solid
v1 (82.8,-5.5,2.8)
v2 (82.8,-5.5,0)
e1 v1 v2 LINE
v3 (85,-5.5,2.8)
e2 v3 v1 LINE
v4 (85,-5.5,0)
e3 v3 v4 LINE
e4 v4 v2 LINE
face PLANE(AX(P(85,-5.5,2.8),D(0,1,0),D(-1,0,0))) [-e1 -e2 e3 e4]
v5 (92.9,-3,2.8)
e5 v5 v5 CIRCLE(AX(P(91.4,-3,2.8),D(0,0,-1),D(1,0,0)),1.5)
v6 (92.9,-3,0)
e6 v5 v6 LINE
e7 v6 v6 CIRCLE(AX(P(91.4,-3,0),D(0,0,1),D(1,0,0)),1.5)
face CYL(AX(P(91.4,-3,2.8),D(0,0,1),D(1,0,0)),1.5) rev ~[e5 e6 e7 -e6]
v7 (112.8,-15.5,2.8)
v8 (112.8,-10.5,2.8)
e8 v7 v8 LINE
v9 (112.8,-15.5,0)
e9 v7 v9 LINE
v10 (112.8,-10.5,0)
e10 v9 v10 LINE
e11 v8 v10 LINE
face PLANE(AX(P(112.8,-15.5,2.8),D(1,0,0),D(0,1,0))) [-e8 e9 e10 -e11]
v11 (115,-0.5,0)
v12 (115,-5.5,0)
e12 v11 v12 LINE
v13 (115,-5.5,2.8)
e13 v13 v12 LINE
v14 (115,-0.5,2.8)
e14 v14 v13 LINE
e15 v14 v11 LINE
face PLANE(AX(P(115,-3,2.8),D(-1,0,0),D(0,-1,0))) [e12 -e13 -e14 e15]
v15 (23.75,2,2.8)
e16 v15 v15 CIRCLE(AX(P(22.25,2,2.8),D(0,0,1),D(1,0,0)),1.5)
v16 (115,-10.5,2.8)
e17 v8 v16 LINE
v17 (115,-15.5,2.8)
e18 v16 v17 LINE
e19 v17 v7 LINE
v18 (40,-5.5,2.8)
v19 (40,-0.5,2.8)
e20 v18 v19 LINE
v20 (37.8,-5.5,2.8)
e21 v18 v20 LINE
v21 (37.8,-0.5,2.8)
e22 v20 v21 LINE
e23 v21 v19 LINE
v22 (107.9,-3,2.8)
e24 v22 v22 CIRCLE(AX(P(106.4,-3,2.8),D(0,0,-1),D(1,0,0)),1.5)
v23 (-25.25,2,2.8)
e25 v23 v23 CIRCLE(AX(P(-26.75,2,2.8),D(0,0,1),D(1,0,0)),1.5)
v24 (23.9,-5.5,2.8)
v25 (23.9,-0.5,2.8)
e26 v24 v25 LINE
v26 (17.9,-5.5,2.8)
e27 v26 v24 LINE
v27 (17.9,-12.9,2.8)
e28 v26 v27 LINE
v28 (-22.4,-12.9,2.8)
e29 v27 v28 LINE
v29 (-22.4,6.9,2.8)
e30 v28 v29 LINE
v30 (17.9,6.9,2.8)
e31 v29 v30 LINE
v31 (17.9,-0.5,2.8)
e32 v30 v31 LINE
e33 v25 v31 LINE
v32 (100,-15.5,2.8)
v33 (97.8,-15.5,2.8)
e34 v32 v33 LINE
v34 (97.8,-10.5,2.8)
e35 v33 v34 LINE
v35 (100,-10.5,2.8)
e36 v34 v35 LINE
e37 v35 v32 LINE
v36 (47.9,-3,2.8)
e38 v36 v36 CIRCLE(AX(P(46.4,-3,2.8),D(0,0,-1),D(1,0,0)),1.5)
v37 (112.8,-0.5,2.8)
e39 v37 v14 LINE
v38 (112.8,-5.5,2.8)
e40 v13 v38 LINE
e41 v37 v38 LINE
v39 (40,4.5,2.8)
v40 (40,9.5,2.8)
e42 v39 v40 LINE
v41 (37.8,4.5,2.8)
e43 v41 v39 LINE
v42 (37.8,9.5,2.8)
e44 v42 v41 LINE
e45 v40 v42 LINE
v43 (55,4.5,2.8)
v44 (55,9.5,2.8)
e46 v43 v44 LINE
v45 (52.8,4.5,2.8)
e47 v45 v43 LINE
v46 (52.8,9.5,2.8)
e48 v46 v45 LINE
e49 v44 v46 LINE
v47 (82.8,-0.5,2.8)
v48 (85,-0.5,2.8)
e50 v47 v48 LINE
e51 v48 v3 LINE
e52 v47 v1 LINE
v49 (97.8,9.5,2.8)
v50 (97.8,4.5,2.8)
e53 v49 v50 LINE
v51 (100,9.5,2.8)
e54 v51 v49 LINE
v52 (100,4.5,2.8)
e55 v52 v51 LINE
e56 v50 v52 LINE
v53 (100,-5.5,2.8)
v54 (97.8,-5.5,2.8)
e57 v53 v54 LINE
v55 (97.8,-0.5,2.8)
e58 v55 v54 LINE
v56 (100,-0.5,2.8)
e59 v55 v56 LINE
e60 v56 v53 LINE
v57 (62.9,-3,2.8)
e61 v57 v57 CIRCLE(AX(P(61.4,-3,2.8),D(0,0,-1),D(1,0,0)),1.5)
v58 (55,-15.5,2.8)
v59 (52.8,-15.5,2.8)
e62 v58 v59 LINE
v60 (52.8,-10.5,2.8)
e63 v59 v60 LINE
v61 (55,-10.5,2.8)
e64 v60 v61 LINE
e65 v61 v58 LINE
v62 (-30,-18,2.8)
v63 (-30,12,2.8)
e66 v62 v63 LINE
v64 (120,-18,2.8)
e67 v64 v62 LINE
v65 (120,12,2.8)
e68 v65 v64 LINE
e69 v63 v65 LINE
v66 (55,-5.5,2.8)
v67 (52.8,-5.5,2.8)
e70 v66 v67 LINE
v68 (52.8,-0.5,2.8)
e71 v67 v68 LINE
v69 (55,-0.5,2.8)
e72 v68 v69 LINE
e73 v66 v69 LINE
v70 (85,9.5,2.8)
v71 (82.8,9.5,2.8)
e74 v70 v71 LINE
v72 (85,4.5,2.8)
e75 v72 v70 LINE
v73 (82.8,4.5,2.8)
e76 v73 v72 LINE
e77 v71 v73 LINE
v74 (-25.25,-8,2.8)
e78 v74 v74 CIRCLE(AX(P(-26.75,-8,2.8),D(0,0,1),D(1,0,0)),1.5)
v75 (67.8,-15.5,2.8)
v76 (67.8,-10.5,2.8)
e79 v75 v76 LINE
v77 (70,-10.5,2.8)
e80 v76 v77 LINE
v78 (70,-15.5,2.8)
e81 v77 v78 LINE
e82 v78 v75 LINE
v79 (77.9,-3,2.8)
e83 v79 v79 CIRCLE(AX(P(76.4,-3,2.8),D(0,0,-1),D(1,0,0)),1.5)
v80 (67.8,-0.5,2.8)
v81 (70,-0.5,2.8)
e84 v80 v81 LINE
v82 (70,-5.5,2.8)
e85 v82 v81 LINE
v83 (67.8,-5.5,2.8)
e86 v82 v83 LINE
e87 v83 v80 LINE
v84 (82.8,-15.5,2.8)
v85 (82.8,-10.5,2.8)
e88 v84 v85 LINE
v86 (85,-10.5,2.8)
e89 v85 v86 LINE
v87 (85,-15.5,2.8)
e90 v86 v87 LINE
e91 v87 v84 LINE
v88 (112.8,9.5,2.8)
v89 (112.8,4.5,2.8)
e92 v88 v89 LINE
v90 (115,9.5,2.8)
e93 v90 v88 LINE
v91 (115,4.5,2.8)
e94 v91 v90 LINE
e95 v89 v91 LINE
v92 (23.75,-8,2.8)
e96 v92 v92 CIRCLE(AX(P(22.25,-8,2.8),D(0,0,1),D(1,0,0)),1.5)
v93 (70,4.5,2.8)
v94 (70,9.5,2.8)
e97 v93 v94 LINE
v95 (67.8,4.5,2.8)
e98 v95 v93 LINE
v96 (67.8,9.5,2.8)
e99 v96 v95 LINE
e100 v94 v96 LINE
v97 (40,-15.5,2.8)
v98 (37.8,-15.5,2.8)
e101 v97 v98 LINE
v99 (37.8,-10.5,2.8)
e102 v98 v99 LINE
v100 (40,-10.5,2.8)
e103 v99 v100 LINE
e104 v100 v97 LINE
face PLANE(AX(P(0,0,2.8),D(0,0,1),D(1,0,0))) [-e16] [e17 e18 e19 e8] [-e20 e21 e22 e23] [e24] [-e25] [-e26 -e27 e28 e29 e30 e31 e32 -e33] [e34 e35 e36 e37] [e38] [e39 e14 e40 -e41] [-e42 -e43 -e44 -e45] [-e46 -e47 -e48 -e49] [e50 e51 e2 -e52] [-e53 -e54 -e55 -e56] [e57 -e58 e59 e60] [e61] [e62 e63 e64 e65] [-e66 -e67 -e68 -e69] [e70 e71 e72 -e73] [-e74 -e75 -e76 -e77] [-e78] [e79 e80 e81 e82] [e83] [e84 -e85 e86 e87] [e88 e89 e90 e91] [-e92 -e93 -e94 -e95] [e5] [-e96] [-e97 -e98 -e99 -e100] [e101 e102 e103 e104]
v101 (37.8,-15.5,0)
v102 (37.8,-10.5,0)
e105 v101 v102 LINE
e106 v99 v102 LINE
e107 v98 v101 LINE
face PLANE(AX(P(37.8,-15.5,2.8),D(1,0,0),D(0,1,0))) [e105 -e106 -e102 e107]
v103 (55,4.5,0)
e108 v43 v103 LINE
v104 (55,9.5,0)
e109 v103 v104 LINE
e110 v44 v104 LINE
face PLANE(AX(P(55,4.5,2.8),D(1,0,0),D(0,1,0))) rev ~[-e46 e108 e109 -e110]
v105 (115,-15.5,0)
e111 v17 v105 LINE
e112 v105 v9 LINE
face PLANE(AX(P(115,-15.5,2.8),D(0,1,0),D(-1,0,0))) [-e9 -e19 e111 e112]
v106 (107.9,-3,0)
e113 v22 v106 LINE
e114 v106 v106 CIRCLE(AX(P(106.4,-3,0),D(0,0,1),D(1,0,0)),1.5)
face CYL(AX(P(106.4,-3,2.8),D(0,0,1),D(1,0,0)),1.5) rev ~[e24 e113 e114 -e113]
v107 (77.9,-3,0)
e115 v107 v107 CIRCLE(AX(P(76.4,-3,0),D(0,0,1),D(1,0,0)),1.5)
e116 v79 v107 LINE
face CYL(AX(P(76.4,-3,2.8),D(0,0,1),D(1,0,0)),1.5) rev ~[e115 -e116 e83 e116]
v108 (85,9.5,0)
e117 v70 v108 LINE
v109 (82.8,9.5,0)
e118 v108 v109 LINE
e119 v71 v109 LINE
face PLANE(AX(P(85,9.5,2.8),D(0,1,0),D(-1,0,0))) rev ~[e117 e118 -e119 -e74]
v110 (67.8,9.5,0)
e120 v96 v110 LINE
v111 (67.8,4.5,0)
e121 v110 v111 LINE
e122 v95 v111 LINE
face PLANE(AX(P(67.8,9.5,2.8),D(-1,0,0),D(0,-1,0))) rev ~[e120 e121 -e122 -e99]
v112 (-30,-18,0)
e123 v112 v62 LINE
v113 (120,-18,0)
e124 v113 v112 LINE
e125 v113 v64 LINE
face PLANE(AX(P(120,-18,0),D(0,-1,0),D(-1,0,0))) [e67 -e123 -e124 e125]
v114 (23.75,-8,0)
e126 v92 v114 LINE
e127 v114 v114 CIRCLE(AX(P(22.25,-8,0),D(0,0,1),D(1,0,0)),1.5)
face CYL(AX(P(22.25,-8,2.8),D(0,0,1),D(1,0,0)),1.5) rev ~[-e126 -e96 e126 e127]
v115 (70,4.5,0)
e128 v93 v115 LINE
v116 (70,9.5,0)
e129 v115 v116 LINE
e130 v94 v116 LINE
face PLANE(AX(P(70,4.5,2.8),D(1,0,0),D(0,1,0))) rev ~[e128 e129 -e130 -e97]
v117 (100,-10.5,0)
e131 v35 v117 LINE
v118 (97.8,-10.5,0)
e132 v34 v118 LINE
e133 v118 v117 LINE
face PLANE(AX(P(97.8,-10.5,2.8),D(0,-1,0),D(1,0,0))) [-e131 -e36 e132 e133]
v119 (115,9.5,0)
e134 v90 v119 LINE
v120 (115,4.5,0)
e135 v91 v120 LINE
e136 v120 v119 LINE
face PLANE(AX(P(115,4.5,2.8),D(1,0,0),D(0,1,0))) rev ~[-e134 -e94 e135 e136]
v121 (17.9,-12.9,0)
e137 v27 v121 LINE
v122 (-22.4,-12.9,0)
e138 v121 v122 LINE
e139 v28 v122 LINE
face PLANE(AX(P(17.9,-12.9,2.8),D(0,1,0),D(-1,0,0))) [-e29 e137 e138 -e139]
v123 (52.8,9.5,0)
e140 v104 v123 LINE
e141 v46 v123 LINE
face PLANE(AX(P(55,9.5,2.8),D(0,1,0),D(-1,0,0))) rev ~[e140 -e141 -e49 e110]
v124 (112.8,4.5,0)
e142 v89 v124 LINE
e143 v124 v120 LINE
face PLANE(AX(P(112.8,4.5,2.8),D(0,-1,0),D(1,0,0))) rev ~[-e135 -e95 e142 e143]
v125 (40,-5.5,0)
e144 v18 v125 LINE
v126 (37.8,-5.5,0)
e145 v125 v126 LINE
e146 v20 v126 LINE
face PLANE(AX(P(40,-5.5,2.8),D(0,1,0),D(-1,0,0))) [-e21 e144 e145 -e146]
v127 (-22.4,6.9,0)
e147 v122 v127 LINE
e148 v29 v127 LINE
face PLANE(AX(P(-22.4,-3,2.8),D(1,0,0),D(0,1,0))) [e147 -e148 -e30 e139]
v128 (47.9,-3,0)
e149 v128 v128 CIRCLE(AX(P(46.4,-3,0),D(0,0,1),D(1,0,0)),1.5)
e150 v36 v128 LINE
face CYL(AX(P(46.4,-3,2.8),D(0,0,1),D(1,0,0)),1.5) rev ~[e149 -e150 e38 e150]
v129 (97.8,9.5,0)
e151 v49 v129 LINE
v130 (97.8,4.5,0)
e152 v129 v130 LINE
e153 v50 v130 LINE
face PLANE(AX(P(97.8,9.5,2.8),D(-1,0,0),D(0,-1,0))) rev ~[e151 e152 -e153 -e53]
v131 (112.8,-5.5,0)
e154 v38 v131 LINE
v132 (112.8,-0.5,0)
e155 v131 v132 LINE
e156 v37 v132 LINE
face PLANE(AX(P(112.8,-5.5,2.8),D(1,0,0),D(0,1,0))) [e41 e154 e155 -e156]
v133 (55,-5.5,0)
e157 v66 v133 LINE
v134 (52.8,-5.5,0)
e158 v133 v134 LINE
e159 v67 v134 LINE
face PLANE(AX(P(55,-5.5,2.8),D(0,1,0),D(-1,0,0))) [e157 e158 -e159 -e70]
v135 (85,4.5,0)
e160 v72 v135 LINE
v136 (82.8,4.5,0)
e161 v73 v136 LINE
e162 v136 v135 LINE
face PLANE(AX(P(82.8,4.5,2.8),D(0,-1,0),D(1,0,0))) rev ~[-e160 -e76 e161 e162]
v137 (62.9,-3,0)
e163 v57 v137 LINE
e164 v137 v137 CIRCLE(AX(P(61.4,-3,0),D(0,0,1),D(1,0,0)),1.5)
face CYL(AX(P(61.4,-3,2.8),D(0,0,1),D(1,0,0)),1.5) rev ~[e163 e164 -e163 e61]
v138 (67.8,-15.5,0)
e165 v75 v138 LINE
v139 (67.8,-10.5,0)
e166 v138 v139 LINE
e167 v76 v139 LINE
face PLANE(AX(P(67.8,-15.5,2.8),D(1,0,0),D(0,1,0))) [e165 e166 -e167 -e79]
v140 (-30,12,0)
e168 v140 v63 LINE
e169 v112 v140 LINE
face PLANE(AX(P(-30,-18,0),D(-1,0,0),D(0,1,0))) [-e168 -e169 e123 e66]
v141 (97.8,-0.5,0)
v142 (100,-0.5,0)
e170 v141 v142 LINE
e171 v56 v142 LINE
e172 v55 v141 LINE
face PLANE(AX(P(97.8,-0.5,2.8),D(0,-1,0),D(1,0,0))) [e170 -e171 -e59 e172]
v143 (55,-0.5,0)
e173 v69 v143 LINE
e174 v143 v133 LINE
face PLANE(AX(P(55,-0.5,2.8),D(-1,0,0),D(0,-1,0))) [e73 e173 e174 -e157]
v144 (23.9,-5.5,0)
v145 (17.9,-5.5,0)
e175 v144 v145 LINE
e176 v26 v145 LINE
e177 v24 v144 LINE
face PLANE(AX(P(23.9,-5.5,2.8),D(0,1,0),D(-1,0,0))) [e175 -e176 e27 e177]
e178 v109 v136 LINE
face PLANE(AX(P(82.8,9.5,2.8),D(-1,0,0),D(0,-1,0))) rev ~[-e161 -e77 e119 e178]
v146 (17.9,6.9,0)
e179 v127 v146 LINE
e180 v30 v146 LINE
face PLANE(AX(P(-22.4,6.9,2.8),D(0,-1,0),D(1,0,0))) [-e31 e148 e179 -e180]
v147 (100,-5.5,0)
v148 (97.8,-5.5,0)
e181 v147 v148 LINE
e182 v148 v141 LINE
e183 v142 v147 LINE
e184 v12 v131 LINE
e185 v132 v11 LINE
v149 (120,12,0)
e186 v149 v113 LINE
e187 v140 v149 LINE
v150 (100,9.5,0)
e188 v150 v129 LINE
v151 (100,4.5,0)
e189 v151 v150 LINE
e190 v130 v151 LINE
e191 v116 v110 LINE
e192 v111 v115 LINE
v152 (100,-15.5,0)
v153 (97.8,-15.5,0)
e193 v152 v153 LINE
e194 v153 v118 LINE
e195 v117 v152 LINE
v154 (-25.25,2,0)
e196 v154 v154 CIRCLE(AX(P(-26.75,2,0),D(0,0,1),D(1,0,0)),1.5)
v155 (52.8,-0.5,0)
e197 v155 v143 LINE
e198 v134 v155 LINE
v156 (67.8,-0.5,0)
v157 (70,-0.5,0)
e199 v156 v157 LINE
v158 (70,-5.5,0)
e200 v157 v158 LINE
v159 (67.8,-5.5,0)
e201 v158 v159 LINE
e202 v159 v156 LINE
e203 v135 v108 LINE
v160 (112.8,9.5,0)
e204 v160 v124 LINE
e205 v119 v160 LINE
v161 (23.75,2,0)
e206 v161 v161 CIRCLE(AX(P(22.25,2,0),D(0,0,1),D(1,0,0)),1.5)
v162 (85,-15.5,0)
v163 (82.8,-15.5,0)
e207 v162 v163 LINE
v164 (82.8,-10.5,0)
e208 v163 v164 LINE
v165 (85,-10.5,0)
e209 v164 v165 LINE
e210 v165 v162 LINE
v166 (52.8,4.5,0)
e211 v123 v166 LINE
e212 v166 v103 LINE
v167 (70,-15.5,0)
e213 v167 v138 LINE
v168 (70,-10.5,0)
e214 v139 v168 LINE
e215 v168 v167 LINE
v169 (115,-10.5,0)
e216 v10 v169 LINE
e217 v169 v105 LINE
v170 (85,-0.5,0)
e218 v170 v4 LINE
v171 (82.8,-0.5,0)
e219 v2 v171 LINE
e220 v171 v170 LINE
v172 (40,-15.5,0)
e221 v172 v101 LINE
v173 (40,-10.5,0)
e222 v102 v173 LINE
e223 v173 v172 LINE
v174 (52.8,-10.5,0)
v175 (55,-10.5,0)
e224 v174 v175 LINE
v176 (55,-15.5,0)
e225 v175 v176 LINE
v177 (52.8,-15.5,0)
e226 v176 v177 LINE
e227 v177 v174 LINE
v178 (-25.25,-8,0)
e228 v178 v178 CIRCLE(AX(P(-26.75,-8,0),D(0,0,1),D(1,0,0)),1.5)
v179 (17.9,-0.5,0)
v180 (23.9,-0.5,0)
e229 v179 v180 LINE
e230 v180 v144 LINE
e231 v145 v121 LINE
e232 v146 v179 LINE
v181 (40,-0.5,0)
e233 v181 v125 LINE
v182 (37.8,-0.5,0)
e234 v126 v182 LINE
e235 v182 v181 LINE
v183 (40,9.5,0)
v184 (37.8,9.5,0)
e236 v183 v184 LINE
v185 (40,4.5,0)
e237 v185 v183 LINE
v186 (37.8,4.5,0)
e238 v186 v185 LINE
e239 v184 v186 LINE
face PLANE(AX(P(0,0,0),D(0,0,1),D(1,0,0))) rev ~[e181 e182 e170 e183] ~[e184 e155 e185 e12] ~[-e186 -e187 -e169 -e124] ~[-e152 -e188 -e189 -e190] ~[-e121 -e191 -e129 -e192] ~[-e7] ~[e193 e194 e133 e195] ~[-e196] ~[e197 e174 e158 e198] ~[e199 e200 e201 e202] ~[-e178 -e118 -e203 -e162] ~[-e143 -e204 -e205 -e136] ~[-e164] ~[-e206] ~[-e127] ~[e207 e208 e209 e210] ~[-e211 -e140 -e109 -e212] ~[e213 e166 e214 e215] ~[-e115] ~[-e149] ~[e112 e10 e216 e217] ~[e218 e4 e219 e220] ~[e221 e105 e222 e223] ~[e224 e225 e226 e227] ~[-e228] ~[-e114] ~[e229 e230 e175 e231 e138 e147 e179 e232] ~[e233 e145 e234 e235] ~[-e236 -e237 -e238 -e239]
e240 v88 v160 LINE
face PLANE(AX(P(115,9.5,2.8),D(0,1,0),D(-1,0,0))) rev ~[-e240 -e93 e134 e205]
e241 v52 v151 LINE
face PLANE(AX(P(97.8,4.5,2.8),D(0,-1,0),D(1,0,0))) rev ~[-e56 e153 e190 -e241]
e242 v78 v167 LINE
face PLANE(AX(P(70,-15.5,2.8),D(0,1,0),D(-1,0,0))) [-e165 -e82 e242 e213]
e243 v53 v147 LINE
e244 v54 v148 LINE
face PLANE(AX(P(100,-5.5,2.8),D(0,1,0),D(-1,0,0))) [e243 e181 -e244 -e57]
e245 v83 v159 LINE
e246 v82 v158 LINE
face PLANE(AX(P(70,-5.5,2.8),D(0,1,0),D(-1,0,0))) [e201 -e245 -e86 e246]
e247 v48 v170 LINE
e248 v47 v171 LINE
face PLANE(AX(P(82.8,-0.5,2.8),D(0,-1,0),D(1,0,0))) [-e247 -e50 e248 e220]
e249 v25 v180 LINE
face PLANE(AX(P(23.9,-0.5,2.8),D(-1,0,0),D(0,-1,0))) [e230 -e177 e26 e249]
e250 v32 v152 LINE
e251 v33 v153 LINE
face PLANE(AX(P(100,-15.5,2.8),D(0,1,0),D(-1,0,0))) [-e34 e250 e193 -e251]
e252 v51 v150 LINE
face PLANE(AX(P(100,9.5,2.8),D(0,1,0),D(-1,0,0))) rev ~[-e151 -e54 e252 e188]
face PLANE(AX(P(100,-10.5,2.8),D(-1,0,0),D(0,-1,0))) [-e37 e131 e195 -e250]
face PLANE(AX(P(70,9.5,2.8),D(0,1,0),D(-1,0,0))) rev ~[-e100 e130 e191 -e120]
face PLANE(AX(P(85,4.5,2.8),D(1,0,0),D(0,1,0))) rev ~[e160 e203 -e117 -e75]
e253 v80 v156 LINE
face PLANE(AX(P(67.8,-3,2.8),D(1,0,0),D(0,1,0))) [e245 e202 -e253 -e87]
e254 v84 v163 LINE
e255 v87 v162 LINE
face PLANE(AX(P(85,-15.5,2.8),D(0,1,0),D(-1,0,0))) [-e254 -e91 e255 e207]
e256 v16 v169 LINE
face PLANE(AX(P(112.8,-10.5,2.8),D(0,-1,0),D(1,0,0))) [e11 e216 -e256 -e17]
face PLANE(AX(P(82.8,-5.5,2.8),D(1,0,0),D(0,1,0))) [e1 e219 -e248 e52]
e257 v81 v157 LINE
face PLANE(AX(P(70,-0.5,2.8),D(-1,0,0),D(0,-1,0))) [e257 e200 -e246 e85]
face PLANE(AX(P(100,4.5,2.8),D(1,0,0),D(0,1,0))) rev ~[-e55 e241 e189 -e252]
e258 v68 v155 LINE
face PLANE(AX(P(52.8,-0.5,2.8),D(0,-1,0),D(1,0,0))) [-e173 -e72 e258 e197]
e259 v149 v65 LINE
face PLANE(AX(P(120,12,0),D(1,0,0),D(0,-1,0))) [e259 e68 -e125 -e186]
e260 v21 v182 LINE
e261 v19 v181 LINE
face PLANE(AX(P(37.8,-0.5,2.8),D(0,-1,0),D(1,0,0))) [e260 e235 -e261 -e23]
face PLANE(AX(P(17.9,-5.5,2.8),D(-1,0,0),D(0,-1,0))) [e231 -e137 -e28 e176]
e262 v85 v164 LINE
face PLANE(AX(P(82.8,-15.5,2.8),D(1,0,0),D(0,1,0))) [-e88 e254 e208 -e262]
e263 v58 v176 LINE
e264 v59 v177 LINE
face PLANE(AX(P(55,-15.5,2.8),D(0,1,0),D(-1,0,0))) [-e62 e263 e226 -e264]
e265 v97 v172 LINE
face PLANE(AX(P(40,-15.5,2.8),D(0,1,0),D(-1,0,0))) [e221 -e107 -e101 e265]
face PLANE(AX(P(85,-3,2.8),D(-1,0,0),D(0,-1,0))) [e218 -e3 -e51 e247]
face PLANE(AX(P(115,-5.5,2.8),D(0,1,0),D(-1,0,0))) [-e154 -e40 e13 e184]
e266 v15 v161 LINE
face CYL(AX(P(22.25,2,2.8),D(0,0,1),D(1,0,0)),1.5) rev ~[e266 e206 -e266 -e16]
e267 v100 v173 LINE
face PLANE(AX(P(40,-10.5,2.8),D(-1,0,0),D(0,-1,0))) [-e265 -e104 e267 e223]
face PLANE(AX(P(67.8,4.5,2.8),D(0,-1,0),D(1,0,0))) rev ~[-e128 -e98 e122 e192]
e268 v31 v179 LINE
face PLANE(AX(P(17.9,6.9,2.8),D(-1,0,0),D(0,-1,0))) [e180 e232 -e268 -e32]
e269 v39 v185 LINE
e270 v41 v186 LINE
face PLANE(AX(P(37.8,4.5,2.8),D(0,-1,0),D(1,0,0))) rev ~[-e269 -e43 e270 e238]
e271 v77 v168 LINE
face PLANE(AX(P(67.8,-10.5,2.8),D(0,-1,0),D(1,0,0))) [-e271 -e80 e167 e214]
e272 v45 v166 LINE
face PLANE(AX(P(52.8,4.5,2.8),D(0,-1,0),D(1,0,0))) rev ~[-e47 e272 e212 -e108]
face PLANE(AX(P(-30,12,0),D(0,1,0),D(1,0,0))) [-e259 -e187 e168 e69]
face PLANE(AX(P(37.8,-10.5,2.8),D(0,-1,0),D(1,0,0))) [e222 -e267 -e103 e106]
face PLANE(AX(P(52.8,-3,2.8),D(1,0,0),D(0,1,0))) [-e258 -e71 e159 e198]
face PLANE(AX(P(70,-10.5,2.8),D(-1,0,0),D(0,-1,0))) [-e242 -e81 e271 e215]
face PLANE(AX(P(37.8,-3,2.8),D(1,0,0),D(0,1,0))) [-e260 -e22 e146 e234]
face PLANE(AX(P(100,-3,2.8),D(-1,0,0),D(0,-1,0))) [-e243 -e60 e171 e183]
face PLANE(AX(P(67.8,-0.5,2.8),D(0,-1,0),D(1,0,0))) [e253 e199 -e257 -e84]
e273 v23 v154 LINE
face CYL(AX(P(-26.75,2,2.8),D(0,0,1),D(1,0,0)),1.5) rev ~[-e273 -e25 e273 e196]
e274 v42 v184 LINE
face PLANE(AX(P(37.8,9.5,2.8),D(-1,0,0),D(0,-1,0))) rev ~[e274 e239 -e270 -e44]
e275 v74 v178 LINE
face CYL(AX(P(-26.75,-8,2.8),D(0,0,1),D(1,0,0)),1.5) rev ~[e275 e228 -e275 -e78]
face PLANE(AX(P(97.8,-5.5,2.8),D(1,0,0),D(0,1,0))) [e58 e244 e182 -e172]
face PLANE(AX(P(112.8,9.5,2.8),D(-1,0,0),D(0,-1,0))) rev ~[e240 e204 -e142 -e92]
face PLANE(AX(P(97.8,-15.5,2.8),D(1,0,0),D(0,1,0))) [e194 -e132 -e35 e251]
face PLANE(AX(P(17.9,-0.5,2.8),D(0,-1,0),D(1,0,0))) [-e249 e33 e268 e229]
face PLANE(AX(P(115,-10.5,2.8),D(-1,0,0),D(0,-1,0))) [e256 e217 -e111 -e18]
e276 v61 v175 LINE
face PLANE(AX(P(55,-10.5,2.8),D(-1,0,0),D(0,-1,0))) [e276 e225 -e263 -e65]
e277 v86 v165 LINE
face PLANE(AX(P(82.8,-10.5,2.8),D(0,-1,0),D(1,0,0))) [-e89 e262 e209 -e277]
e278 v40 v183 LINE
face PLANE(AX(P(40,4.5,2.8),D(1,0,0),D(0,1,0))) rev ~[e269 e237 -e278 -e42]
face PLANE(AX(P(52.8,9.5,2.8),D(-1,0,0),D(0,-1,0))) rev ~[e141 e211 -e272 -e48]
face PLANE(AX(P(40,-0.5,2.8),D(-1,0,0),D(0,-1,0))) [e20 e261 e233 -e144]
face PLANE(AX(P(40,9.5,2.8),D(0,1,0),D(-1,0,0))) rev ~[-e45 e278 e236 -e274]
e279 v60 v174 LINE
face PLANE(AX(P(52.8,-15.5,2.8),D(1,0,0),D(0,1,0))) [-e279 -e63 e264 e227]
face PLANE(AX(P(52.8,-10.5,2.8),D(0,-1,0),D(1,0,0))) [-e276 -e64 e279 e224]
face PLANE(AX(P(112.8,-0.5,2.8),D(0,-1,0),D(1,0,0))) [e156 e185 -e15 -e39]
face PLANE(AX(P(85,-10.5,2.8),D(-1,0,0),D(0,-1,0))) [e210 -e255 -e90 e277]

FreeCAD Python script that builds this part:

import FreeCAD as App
import Part
import Sketcher

doc = App.newDocument("Part")
body = doc.addObject("PartDesign::Body", "Body")

sketch1 = body.newObject("Sketcher::SketchObject", "Sketch")
sketch1.AttachmentSupport = (doc.getObject("XY_Plane"), [""])
sketch1.MapMode = "FlatFace"
sketch1.addGeometry(Part.LineSegment(App.Vector(-30, 12, 0), App.Vector(-30, -18, 0)), False)
sketch1.addGeometry(Part.LineSegment(App.Vector(-30, -18, 0), App.Vector(120, -18, 0)), False)
sketch1.addGeometry(Part.LineSegment(App.Vector(120, -18, 0), App.Vector(120, 12, 0)), False)
sketch1.addGeometry(Part.LineSegment(App.Vector(120, 12, 0), App.Vector(-30, 12, 0)), False)
sketch1.addConstraint(Sketcher.Constraint("Coincident", 0, 2, 1, 1))
sketch1.addConstraint(Sketcher.Constraint("Coincident", 1, 2, 2, 1))
sketch1.addConstraint(Sketcher.Constraint("Coincident", 2, 2, 3, 1))
sketch1.addConstraint(Sketcher.Constraint("Coincident", 3, 2, 0, 1))
sketch1.addConstraint(Sketcher.Constraint("Vertical", 0))
sketch1.addConstraint(Sketcher.Constraint("Horizontal", 1))
sketch1.addConstraint(Sketcher.Constraint("Vertical", 2))
sketch1.addConstraint(Sketcher.Constraint("Horizontal", 3))
sketch1.addConstraint(Sketcher.Constraint("DistanceX", 1, 1, 1, 2, 150.0))
sketch1.addConstraint(Sketcher.Constraint("DistanceY", 0, 2, 0, 1, 30.0))
sketch1.addConstraint(Sketcher.Constraint("DistanceX", 0, 2, -1, 1, 30.0))
sketch1.addConstraint(Sketcher.Constraint("DistanceY", 0, 2, -1, 1, 18.0))
pad1 = body.newObject("PartDesign::Pad", "Pad")
pad1.Profile = sketch1
pad1.Length = 2.8

sketch2 = body.newObject("Sketcher::SketchObject", "Sketch001")
sketch2.AttachmentSupport = (doc.getObject("XY_Plane"), [""])
sketch2.MapMode = "FlatFace"
sketch2.AttachmentOffset = App.Placement(App.Vector(0, 0, 2.8), App.Rotation())
sketch2.addGeometry(Part.LineSegment(App.Vector(17.9, 6.9, 0), App.Vector(-22.4, 6.9, 0)), False)
sketch2.addGeometry(Part.LineSegment(App.Vector(-22.4, 6.9, 0), App.Vector(-22.4, -12.9, 0)), False)
sketch2.addGeometry(Part.LineSegment(App.Vector(-22.4, -12.9, 0), App.Vector(17.9, -12.9, 0)), False)
sketch2.addGeometry(Part.LineSegment(App.Vector(17.9, -12.9, 0), App.Vector(17.9, -5.5, 0)), False)
sketch2.addGeometry(Part.LineSegment(App.Vector(17.9, -5.5, 0), App.Vector(23.9, -5.5, 0)), False)
sketch2.addGeometry(Part.LineSegment(App.Vector(23.9, -5.5, 0), App.Vector(23.9, -0.5, 0)), False)
sketch2.addGeometry(Part.LineSegment(App.Vector(23.9, -0.5, 0), App.Vector(17.9, -0.5, 0)), False)
sketch2.addGeometry(Part.LineSegment(App.Vector(17.9, -0.5, 0), App.Vector(17.9, 6.9, 0)), False)
sketch2.addGeometry(Part.LineSegment(App.Vector(37.8, -0.5, 0), App.Vector(37.8, -5.5, 0)), False)
sketch2.addGeometry(Part.LineSegment(App.Vector(37.8, -5.5, 0), App.Vector(40, -5.5, 0)), False)
sketch2.addGeometry(Part.LineSegment(App.Vector(40, -5.5, 0), App.Vector(40, -0.5, 0)), False)
sketch2.addGeometry(Part.LineSegment(App.Vector(40, -0.5, 0), App.Vector(37.8, -0.5, 0)), False)
sketch2.addGeometry(Part.Circle(App.Vector(46.4, -3, 0), App.Vector(0, 0, 1), 1.5), False)
sketch2.addGeometry(Part.LineSegment(App.Vector(115, -5.5, 0), App.Vector(115, -0.5, 0)), False)
sketch2.addGeometry(Part.LineSegment(App.Vector(115, -0.5, 0), App.Vector(112.8, -0.5, 0)), False)
sketch2.addGeometry(Part.LineSegment(App.Vector(112.8, -0.5, 0), App.Vector(112.8, -5.5, 0)), False)
sketch2.addGeometry(Part.LineSegment(App.Vector(112.8, -5.5, 0), App.Vector(115, -5.5, 0)), False)
sketch2.addGeometry(Part.LineSegment(App.Vector(52.8, -0.5, 0), App.Vector(52.8, -5.5, 0)), False)
sketch2.addGeometry(Part.LineSegment(App.Vector(52.8, -5.5, 0), App.Vector(55, -5.5, 0)), False)
sketch2.addGeometry(Part.LineSegment(App.Vector(55, -5.5, 0), App.Vector(55, -0.5, 0)), False)
sketch2.addGeometry(Part.LineSegment(App.Vector(55, -0.5, 0), App.Vector(52.8, -0.5, 0)), False)
sketch2.addGeometry(Part.Circle(App.Vector(106.4, -3, 0), App.Vector(0, 0, 1), 1.5), False)
sketch2.addGeometry(Part.Circle(App.Vector(61.4, -3, 0), App.Vector(0, 0, 1), 1.5), False)
sketch2.addGeometry(Part.LineSegment(App.Vector(100, -5.5, 0), App.Vector(100, -0.5, 0)), False)
sketch2.addGeometry(Part.LineSegment(App.Vector(100, -0.5, 0), App.Vector(97.8, -0.5, 0)), False)
sketch2.addGeometry(Part.LineSegment(App.Vector(97.8, -0.5, 0), App.Vector(97.8, -5.5, 0)), False)
sketch2.addGeometry(Part.LineSegment(App.Vector(97.8, -5.5, 0), App.Vector(100, -5.5, 0)), False)
sketch2.addGeometry(Part.LineSegment(App.Vector(67.8, -0.5, 0), App.Vector(67.8, -5.5, 0)), False)
sketch2.addGeometry(Part.LineSegment(App.Vector(67.8, -5.5, 0), App.Vector(70, -5.5, 0)), False)
sketch2.addGeometry(Part.LineSegment(App.Vector(70, -5.5, 0), App.Vector(70, -0.5, 0)), False)
sketch2.addGeometry(Part.LineSegment(App.Vector(70, -0.5, 0), App.Vector(67.8, -0.5, 0)), False)
sketch2.addGeometry(Part.Circle(App.Vector(91.4, -3, 0), App.Vector(0, 0, 1), 1.5), False)
sketch2.addGeometry(Part.Circle(App.Vector(76.4, -3, 0), App.Vector(0, 0, 1), 1.5), False)
sketch2.addGeometry(Part.LineSegment(App.Vector(85, -5.5, 0), App.Vector(85, -0.5, 0)), False)
sketch2.addGeometry(Part.LineSegment(App.Vector(85, -0.5, 0), App.Vector(82.8, -0.5, 0)), False)
sketch2.addGeometry(Part.LineSegment(App.Vector(82.8, -0.5, 0), App.Vector(82.8, -5.5, 0)), False)
sketch2.addGeometry(Part.LineSegment(App.Vector(82.8, -5.5, 0), App.Vector(85, -5.5, 0)), False)
sketch2.addGeometry(Part.Circle(App.Vector(22.2, -8, 0), App.Vector(0, 0, 1), 1.5), False)
sketch2.addGeometry(Part.Circle(App.Vector(22.2, 2, 0), App.Vector(0, 0, 1), 1.5), False)
sketch2.addGeometry(Part.Circle(App.Vector(-26.8, -8, 0), App.Vector(0, 0, 1), 1.5), False)
sketch2.addGeometry(Part.Circle(App.Vector(-26.8, 2, 0), App.Vector(0, 0, 1), 1.5), False)
sketch2.addGeometry(Part.LineSegment(App.Vector(115, -10.5, 0), App.Vector(112.8, -10.5, 0)), False)
sketch2.addGeometry(Part.LineSegment(App.Vector(112.8, -10.5, 0), App.Vector(112.8, -15.5, 0)), False)
sketch2.addGeometry(Part.LineSegment(App.Vector(112.8, -15.5, 0), App.Vector(115, -15.5, 0)), False)
sketch2.addGeometry(Part.LineSegment(App.Vector(115, -15.5, 0), App.Vector(115, -10.5, 0)), False)
sketch2.addGeometry(Part.LineSegment(App.Vector(100, -10.5, 0), App.Vector(97.8, -10.5, 0)), False)
sketch2.addGeometry(Part.LineSegment(App.Vector(97.8, -10.5, 0), App.Vector(97.8, -15.5, 0)), False)
sketch2.addGeometry(Part.LineSegment(App.Vector(97.8, -15.5, 0), App.Vector(100, -15.5, 0)), False)
sketch2.addGeometry(Part.LineSegment(App.Vector(100, -15.5, 0), App.Vector(100, -10.5, 0)), False)
sketch2.addGeometry(Part.LineSegment(App.Vector(85, -10.5, 0), App.Vector(82.8, -10.5, 0)), False)
sketch2.addGeometry(Part.LineSegment(App.Vector(82.8, -10.5, 0), App.Vector(82.8, -15.5, 0)), False)
sketch2.addGeometry(Part.LineSegment(App.Vector(82.8, -15.5, 0), App.Vector(85, -15.5, 0)), False)
sketch2.addGeometry(Part.LineSegment(App.Vector(85, -15.5, 0), App.Vector(85, -10.5, 0)), False)
sketch2.addGeometry(Part.LineSegment(App.Vector(70, -10.5, 0), App.Vector(67.8, -10.5, 0)), False)
sketch2.addGeometry(Part.LineSegment(App.Vector(67.8, -10.5, 0), App.Vector(67.8, -15.5, 0)), False)
sketch2.addGeometry(Part.LineSegment(App.Vector(67.8, -15.5, 0), App.Vector(70, -15.5, 0)), False)
sketch2.addGeometry(Part.LineSegment(App.Vector(70, -15.5, 0), App.Vector(70, -10.5, 0)), False)
sketch2.addGeometry(Part.LineSegment(App.Vector(55, -10.5, 0), App.Vector(52.8, -10.5, 0)), False)
sketch2.addGeometry(Part.LineSegment(App.Vector(52.8, -10.5, 0), App.Vector(52.8, -15.5, 0)), False)
sketch2.addGeometry(Part.LineSegment(App.Vector(52.8, -15.5, 0), App.Vector(55, -15.5, 0)), False)
sketch2.addGeometry(Part.LineSegment(App.Vector(55, -15.5, 0), App.Vector(55, -10.5, 0)), False)
sketch2.addGeometry(Part.LineSegment(App.Vector(40, -10.5, 0), App.Vector(37.8, -10.5, 0)), False)
sketch2.addGeometry(Part.LineSegment(App.Vector(37.8, -10.5, 0), App.Vector(37.8, -15.5, 0)), False)
sketch2.addGeometry(Part.LineSegment(App.Vector(37.8, -15.5, 0), App.Vector(40, -15.5, 0)), False)
sketch2.addGeometry(Part.LineSegment(App.Vector(40, -15.5, 0), App.Vector(40, -10.5, 0)), False)
sketch2.addGeometry(Part.LineSegment(App.Vector(115, 9.5, 0), App.Vector(112.8, 9.5, 0)), False)
sketch2.addGeometry(Part.LineSegment(App.Vector(112.8, 9.5, 0), App.Vector(112.8, 4.5, 0)), False)
sketch2.addGeometry(Part.LineSegment(App.Vector(112.8, 4.5, 0), App.Vector(115, 4.5, 0)), False)
sketch2.addGeometry(Part.LineSegment(App.Vector(115, 4.5, 0), App.Vector(115, 9.5, 0)), False)
sketch2.addGeometry(Part.LineSegment(App.Vector(100, 9.5, 0), App.Vector(97.8, 9.5, 0)), False)
sketch2.addGeometry(Part.LineSegment(App.Vector(97.8, 9.5, 0), App.Vector(97.8, 4.5, 0)), False)
sketch2.addGeometry(Part.LineSegment(App.Vector(97.8, 4.5, 0), App.Vector(100, 4.5, 0)), False)
sketch2.addGeometry(Part.LineSegment(App.Vector(100, 4.5, 0), App.Vector(100, 9.5, 0)), False)
sketch2.addGeometry(Part.LineSegment(App.Vector(85, 9.5, 0), App.Vector(82.8, 9.5, 0)), False)
sketch2.addGeometry(Part.LineSegment(App.Vector(82.8, 9.5, 0), App.Vector(82.8, 4.5, 0)), False)
sketch2.addGeometry(Part.LineSegment(App.Vector(82.8, 4.5, 0), App.Vector(85, 4.5, 0)), False)
sketch2.addGeometry(Part.LineSegment(App.Vector(85, 4.5, 0), App.Vector(85, 9.5, 0)), False)
sketch2.addGeometry(Part.LineSegment(App.Vector(70, 9.5, 0), App.Vector(67.8, 9.5, 0)), False)
sketch2.addGeometry(Part.LineSegment(App.Vector(67.8, 9.5, 0), App.Vector(67.8, 4.5, 0)), False)
sketch2.addGeometry(Part.LineSegment(App.Vector(67.8, 4.5, 0), App.Vector(70, 4.5, 0)), False)
sketch2.addGeometry(Part.LineSegment(App.Vector(70, 4.5, 0), App.Vector(70, 9.5, 0)), False)
sketch2.addGeometry(Part.LineSegment(App.Vector(55, 9.5, 0), App.Vector(52.8, 9.5, 0)), False)
sketch2.addGeometry(Part.LineSegment(App.Vector(52.8, 9.5, 0), App.Vector(52.8, 4.5, 0)), False)
sketch2.addGeometry(Part.LineSegment(App.Vector(52.8, 4.5, 0), App.Vector(55, 4.5, 0)), False)
sketch2.addGeometry(Part.LineSegment(App.Vector(55, 4.5, 0), App.Vector(55, 9.5, 0)), False)
sketch2.addGeometry(Part.LineSegment(App.Vector(40, 9.5, 0), App.Vector(37.8, 9.5, 0)), False)
sketch2.addGeometry(Part.LineSegment(App.Vector(37.8, 9.5, 0), App.Vector(37.8, 4.5, 0)), False)
sketch2.addGeometry(Part.LineSegment(App.Vector(37.8, 4.5, 0), App.Vector(40, 4.5, 0)), False)
sketch2.addGeometry(Part.LineSegment(App.Vector(40, 4.5, 0), App.Vector(40, 9.5, 0)), False)
sketch2.addConstraint(Sketcher.Constraint("Coincident", 0, 2, 1, 1))
sketch2.addConstraint(Sketcher.Constraint("Coincident", 1, 2, 2, 1))
sketch2.addConstraint(Sketcher.Constraint("Coincident", 2, 2, 3, 1))
sketch2.addConstraint(Sketcher.Constraint("Coincident", 3, 2, 4, 1))
sketch2.addConstraint(Sketcher.Constraint("Coincident", 4, 2, 5, 1))
sketch2.addConstraint(Sketcher.Constraint("Coincident", 5, 2, 6, 1))
sketch2.addConstraint(Sketcher.Constraint("Coincident", 6, 2, 7, 1))
sketch2.addConstraint(Sketcher.Constraint("Coincident", 7, 2, 0, 1))
sketch2.addConstraint(Sketcher.Constraint("Coincident", 8, 2, 9, 1))
sketch2.addConstraint(Sketcher.Constraint("Coincident", 9, 2, 10, 1))
sketch2.addConstraint(Sketcher.Constraint("Coincident", 10, 2, 11, 1))
sketch2.addConstraint(Sketcher.Constraint("Coincident", 11, 2, 8, 1))
sketch2.addConstraint(Sketcher.Constraint("Coincident", 13, 2, 14, 1))
sketch2.addConstraint(Sketcher.Constraint("Coincident", 14, 2, 15, 1))
sketch2.addConstraint(Sketcher.Constraint("Coincident", 15, 2, 16, 1))
sketch2.addConstraint(Sketcher.Constraint("Coincident", 16, 2, 13, 1))
sketch2.addConstraint(Sketcher.Constraint("Coincident", 17, 2, 18, 1))
sketch2.addConstraint(Sketcher.Constraint("Coincident", 18, 2, 19, 1))
sketch2.addConstraint(Sketcher.Constraint("Coincident", 19, 2, 20, 1))
sketch2.addConstraint(Sketcher.Constraint("Coincident", 20, 2, 17, 1))
sketch2.addConstraint(Sketcher.Constraint("Coincident", 23, 2, 24, 1))
sketch2.addConstraint(Sketcher.Constraint("Coincident", 24, 2, 25, 1))
sketch2.addConstraint(Sketcher.Constraint("Coincident", 25, 2, 26, 1))
sketch2.addConstraint(Sketcher.Constraint("Coincident", 26, 2, 23, 1))
sketch2.addConstraint(Sketcher.Constraint("Coincident", 27, 2, 28, 1))
sketch2.addConstraint(Sketcher.Constraint("Coincident", 28, 2, 29, 1))
sketch2.addConstraint(Sketcher.Constraint("Coincident", 29, 2, 30, 1))
sketch2.addConstraint(Sketcher.Constraint("Coincident", 30, 2, 27, 1))
sketch2.addConstraint(Sketcher.Constraint("Coincident", 33, 2, 34, 1))
sketch2.addConstraint(Sketcher.Constraint("Coincident", 34, 2, 35, 1))
sketch2.addConstraint(Sketcher.Constraint("Coincident", 35, 2, 36, 1))
sketch2.addConstraint(Sketcher.Constraint("Coincident", 36, 2, 33, 1))
sketch2.addConstraint(Sketcher.Constraint("Coincident", 41, 2, 42, 1))
sketch2.addConstraint(Sketcher.Constraint("Coincident", 42, 2, 43, 1))
sketch2.addConstraint(Sketcher.Constraint("Coincident", 43, 2, 44, 1))
sketch2.addConstraint(Sketcher.Constraint("Coincident", 44, 2, 41, 1))
sketch2.addConstraint(Sketcher.Constraint("Coincident", 45, 2, 46, 1))
sketch2.addConstraint(Sketcher.Constraint("Coincident", 46, 2, 47, 1))
sketch2.addConstraint(Sketcher.Constraint("Coincident", 47, 2, 48, 1))
sketch2.addConstraint(Sketcher.Constraint("Coincident", 48, 2, 45, 1))
sketch2.addConstraint(Sketcher.Constraint("Coincident", 49, 2, 50, 1))
sketch2.addConstraint(Sketcher.Constraint("Coincident", 50, 2, 51, 1))
sketch2.addConstraint(Sketcher.Constraint("Coincident", 51, 2, 52, 1))
sketch2.addConstraint(Sketcher.Constraint("Coincident", 52, 2, 49, 1))
sketch2.addConstraint(Sketcher.Constraint("Coincident", 53, 2, 54, 1))
sketch2.addConstraint(Sketcher.Constraint("Coincident", 54, 2, 55, 1))
sketch2.addConstraint(Sketcher.Constraint("Coincident", 55, 2, 56, 1))
sketch2.addConstraint(Sketcher.Constraint("Coincident", 56, 2, 53, 1))
sketch2.addConstraint(Sketcher.Constraint("Coincident", 57, 2, 58, 1))
sketch2.addConstraint(Sketcher.Constraint("Coincident", 58, 2, 59, 1))
sketch2.addConstraint(Sketcher.Constraint("Coincident", 59, 2, 60, 1))
sketch2.addConstraint(Sketcher.Constraint("Coincident", 60, 2, 57, 1))
sketch2.addConstraint(Sketcher.Constraint("Coincident", 61, 2, 62, 1))
sketch2.addConstraint(Sketcher.Constraint("Coincident", 62, 2, 63, 1))
sketch2.addConstraint(Sketcher.Constraint("Coincident", 63, 2, 64, 1))
sketch2.addConstraint(Sketcher.Constraint("Coincident", 64, 2, 61, 1))
sketch2.addConstraint(Sketcher.Constraint("Coincident", 65, 2, 66, 1))
sketch2.addConstraint(Sketcher.Constraint("Coincident", 66, 2, 67, 1))
sketch2.addConstraint(Sketcher.Constraint("Coincident", 67, 2, 68, 1))
sketch2.addConstraint(Sketcher.Constraint("Coincident", 68, 2, 65, 1))
sketch2.addConstraint(Sketcher.Constraint("Coincident", 69, 2, 70, 1))
sketch2.addConstraint(Sketcher.Constraint("Coincident", 70, 2, 71, 1))
sketch2.addConstraint(Sketcher.Constraint("Coincident", 71, 2, 72, 1))
sketch2.addConstraint(Sketcher.Constraint("Coincident", 72, 2, 69, 1))
sketch2.addConstraint(Sketcher.Constraint("Coincident", 73, 2, 74, 1))
sketch2.addConstraint(Sketcher.Constraint("Coincident", 74, 2, 75, 1))
sketch2.addConstraint(Sketcher.Constraint("Coincident", 75, 2, 76, 1))
sketch2.addConstraint(Sketcher.Constraint("Coincident", 76, 2, 73, 1))
sketch2.addConstraint(Sketcher.Constraint("Coincident", 77, 2, 78, 1))
sketch2.addConstraint(Sketcher.Constraint("Coincident", 78, 2, 79, 1))
sketch2.addConstraint(Sketcher.Constraint("Coincident", 79, 2, 80, 1))
sketch2.addConstraint(Sketcher.Constraint("Coincident", 80, 2, 77, 1))
sketch2.addConstraint(Sketcher.Constraint("Coincident", 81, 2, 82, 1))
sketch2.addConstraint(Sketcher.Constraint("Coincident", 82, 2, 83, 1))
sketch2.addConstraint(Sketcher.Constraint("Coincident", 83, 2, 84, 1))
sketch2.addConstraint(Sketcher.Constraint("Coincident", 84, 2, 81, 1))
sketch2.addConstraint(Sketcher.Constraint("Coincident", 85, 2, 86, 1))
sketch2.addConstraint(Sketcher.Constraint("Coincident", 86, 2, 87, 1))
sketch2.addConstraint(Sketcher.Constraint("Coincident", 87, 2, 88, 1))
sketch2.addConstraint(Sketcher.Constraint("Coincident", 88, 2, 85, 1))
sketch2.addConstraint(Sketcher.Constraint("Horizontal", 0))
sketch2.addConstraint(Sketcher.Constraint("Vertical", 1))
sketch2.addConstraint(Sketcher.Constraint("Horizontal", 2))
sketch2.addConstraint(Sketcher.Constraint("Vertical", 3))
sketch2.addConstraint(Sketcher.Constraint("Horizontal", 4))
sketch2.addConstraint(Sketcher.Constraint("Vertical", 5))
sketch2.addConstraint(Sketcher.Constraint("Horizontal", 6))
sketch2.addConstraint(Sketcher.Constraint("Vertical", 7))
sketch2.addConstraint(Sketcher.Constraint("Vertical", 8))
sketch2.addConstraint(Sketcher.Constraint("Horizontal", 9))
sketch2.addConstraint(Sketcher.Constraint("Vertical", 10))
sketch2.addConstraint(Sketcher.Constraint("Horizontal", 11))
sketch2.addConstraint(Sketcher.Constraint("Vertical", 13))
sketch2.addConstraint(Sketcher.Constraint("Horizontal", 14))
sketch2.addConstraint(Sketcher.Constraint("Vertical", 15))
sketch2.addConstraint(Sketcher.Constraint("Horizontal", 16))
sketch2.addConstraint(Sketcher.Constraint("Vertical", 17))
sketch2.addConstraint(Sketcher.Constraint("Horizontal", 18))
sketch2.addConstraint(Sketcher.Constraint("Vertical", 19))
sketch2.addConstraint(Sketcher.Constraint("Horizontal", 20))
sketch2.addConstraint(Sketcher.Constraint("Vertical", 23))
sketch2.addConstraint(Sketcher.Constraint("Horizontal", 24))
sketch2.addConstraint(Sketcher.Constraint("Vertical", 25))
sketch2.addConstraint(Sketcher.Constraint("Horizontal", 26))
sketch2.addConstraint(Sketcher.Constraint("Vertical", 27))
sketch2.addConstraint(Sketcher.Constraint("Horizontal", 28))
sketch2.addConstraint(Sketcher.Constraint("Vertical", 29))
sketch2.addConstraint(Sketcher.Constraint("Horizontal", 30))
sketch2.addConstraint(Sketcher.Constraint("Vertical", 33))
sketch2.addConstraint(Sketcher.Constraint("Horizontal", 34))
sketch2.addConstraint(Sketcher.Constraint("Vertical", 35))
sketch2.addConstraint(Sketcher.Constraint("Horizontal", 36))
sketch2.addConstraint(Sketcher.Constraint("Horizontal", 41))
sketch2.addConstraint(Sketcher.Constraint("Vertical", 42))
sketch2.addConstraint(Sketcher.Constraint("Horizontal", 43))
sketch2.addConstraint(Sketcher.Constraint("Vertical", 44))
sketch2.addConstraint(Sketcher.Constraint("Horizontal", 45))
sketch2.addConstraint(Sketcher.Constraint("Vertical", 46))
sketch2.addConstraint(Sketcher.Constraint("Horizontal", 47))
sketch2.addConstraint(Sketcher.Constraint("Vertical", 48))
sketch2.addConstraint(Sketcher.Constraint("Horizontal", 49))
sketch2.addConstraint(Sketcher.Constraint("Vertical", 50))
sketch2.addConstraint(Sketcher.Constraint("Horizontal", 51))
sketch2.addConstraint(Sketcher.Constraint("Vertical", 52))
sketch2.addConstraint(Sketcher.Constraint("Horizontal", 53))
sketch2.addConstraint(Sketcher.Constraint("Vertical", 54))
sketch2.addConstraint(Sketcher.Constraint("Horizontal", 55))
sketch2.addConstraint(Sketcher.Constraint("Vertical", 56))
sketch2.addConstraint(Sketcher.Constraint("Horizontal", 57))
sketch2.addConstraint(Sketcher.Constraint("Vertical", 58))
sketch2.addConstraint(Sketcher.Constraint("Horizontal", 59))
sketch2.addConstraint(Sketcher.Constraint("Vertical", 60))
sketch2.addConstraint(Sketcher.Constraint("Horizontal", 61))
sketch2.addConstraint(Sketcher.Constraint("Vertical", 62))
sketch2.addConstraint(Sketcher.Constraint("Horizontal", 63))
sketch2.addConstraint(Sketcher.Constraint("Vertical", 64))
sketch2.addConstraint(Sketcher.Constraint("Horizontal", 65))
sketch2.addConstraint(Sketcher.Constraint("Vertical", 66))
sketch2.addConstraint(Sketcher.Constraint("Horizontal", 67))
sketch2.addConstraint(Sketcher.Constraint("Vertical", 68))
sketch2.addConstraint(Sketcher.Constraint("Horizontal", 69))
sketch2.addConstraint(Sketcher.Constraint("Vertical", 70))
sketch2.addConstraint(Sketcher.Constraint("Horizontal", 71))
sketch2.addConstraint(Sketcher.Constraint("Vertical", 72))
sketch2.addConstraint(Sketcher.Constraint("Horizontal", 73))
sketch2.addConstraint(Sketcher.Constraint("Vertical", 74))
sketch2.addConstraint(Sketcher.Constraint("Horizontal", 75))
sketch2.addConstraint(Sketcher.Constraint("Vertical", 76))
sketch2.addConstraint(Sketcher.Constraint("Horizontal", 77))
sketch2.addConstraint(Sketcher.Constraint("Vertical", 78))
sketch2.addConstraint(Sketcher.Constraint("Horizontal", 79))
sketch2.addConstraint(Sketcher.Constraint("Vertical", 80))
sketch2.addConstraint(Sketcher.Constraint("Horizontal", 81))
sketch2.addConstraint(Sketcher.Constraint("Vertical", 82))
sketch2.addConstraint(Sketcher.Constraint("Horizontal", 83))
sketch2.addConstraint(Sketcher.Constraint("Vertical", 84))
sketch2.addConstraint(Sketcher.Constraint("Horizontal", 85))
sketch2.addConstraint(Sketcher.Constraint("Vertical", 86))
sketch2.addConstraint(Sketcher.Constraint("Horizontal", 87))
sketch2.addConstraint(Sketcher.Constraint("Vertical", 88))
sketch2.addConstraint(Sketcher.Constraint("Equal", 12, 21))
sketch2.addConstraint(Sketcher.Constraint("Equal", 21, 22))
sketch2.addConstraint(Sketcher.Constraint("Equal", 22, 31))
sketch2.addConstraint(Sketcher.Constraint("Equal", 31, 32))
sketch2.addConstraint(Sketcher.Constraint("Equal", 32, 37))
sketch2.addConstraint(Sketcher.Constraint("Equal", 37, 38))
sketch2.addConstraint(Sketcher.Constraint("Equal", 38, 39))
sketch2.addConstraint(Sketcher.Constraint("Equal", 39, 40))
sketch2.addConstraint(Sketcher.Constraint("Horizontal", 12, 3, 21, 3))
sketch2.addConstraint(Sketcher.Constraint("Horizontal", 21, 3, 22, 3))
sketch2.addConstraint(Sketcher.Constraint("Horizontal", 22, 3, 31, 3))
sketch2.addConstraint(Sketcher.Constraint("Horizontal", 31, 3, 32, 3))
sketch2.addConstraint(Sketcher.Constraint("Horizontal", 37, 3, 39, 3))
sketch2.addConstraint(Sketcher.Constraint("Horizontal", 38, 3, 40, 3))
sketch2.addConstraint(Sketcher.Constraint("Horizontal", 4, 2, 8, 2))
sketch2.addConstraint(Sketcher.Constraint("Horizontal", 6, 2, 10, 2))
sketch2.addConstraint(Sketcher.Constraint("Horizontal", 11, 2, 13, 2))
sketch2.addConstraint(Sketcher.Constraint("Horizontal", 9, 2, 15, 2))
sketch2.addConstraint(Sketcher.Constraint("Horizontal", 16, 2, 17, 2))
sketch2.addConstraint(Sketcher.Constraint("Horizontal", 14, 2, 19, 2))
sketch2.addConstraint(Sketcher.Constraint("Horizontal", 20, 2, 23, 2))
sketch2.addConstraint(Sketcher.Constraint("Horizontal", 18, 2, 25, 2))
sketch2.addConstraint(Sketcher.Constraint("Horizontal", 26, 2, 27, 2))
sketch2.addConstraint(Sketcher.Constraint("Horizontal", 24, 2, 29, 2))
sketch2.addConstraint(Sketcher.Constraint("Horizontal", 30, 2, 33, 2))
sketch2.addConstraint(Sketcher.Constraint("Horizontal", 28, 2, 35, 2))
sketch2.addConstraint(Sketcher.Constraint("Horizontal", 44, 2, 45, 2))
sketch2.addConstraint(Sketcher.Constraint("Horizontal", 43, 2, 46, 2))
sketch2.addConstraint(Sketcher.Constraint("Horizontal", 48, 2, 49, 2))
sketch2.addConstraint(Sketcher.Constraint("Horizontal", 47, 2, 50, 2))
sketch2.addConstraint(Sketcher.Constraint("Horizontal", 52, 2, 53, 2))
sketch2.addConstraint(Sketcher.Constraint("Horizontal", 51, 2, 54, 2))
sketch2.addConstraint(Sketcher.Constraint("Horizontal", 56, 2, 57, 2))
sketch2.addConstraint(Sketcher.Constraint("Horizontal", 55, 2, 58, 2))
sketch2.addConstraint(Sketcher.Constraint("Horizontal", 60, 2, 61, 2))
sketch2.addConstraint(Sketcher.Constraint("Horizontal", 59, 2, 62, 2))
sketch2.addConstraint(Sketcher.Constraint("Horizontal", 68, 2, 69, 2))
sketch2.addConstraint(Sketcher.Constraint("Horizontal", 67, 2, 70, 2))
sketch2.addConstraint(Sketcher.Constraint("Horizontal", 72, 2, 73, 2))
sketch2.addConstraint(Sketcher.Constraint("Horizontal", 71, 2, 74, 2))
sketch2.addConstraint(Sketcher.Constraint("Horizontal", 76, 2, 77, 2))
sketch2.addConstraint(Sketcher.Constraint("Horizontal", 75, 2, 78, 2))
sketch2.addConstraint(Sketcher.Constraint("Horizontal", 80, 2, 81, 2))
sketch2.addConstraint(Sketcher.Constraint("Horizontal", 79, 2, 82, 2))
sketch2.addConstraint(Sketcher.Constraint("Horizontal", 84, 2, 85, 2))
sketch2.addConstraint(Sketcher.Constraint("Horizontal", 83, 2, 86, 2))
sketch2.addConstraint(Sketcher.Constraint("Vertical", 37, 3, 38, 3))
sketch2.addConstraint(Sketcher.Constraint("Vertical", 39, 3, 40, 3))
sketch2.addConstraint(Sketcher.Constraint("Vertical", 3, 2, 6, 2))
sketch2.addConstraint(Sketcher.Constraint("Vertical", 15, 2, 41, 2))
sketch2.addConstraint(Sketcher.Constraint("Vertical", 16, 2, 43, 2))
sketch2.addConstraint(Sketcher.Constraint("Vertical", 25, 2, 45, 2))
sketch2.addConstraint(Sketcher.Constraint("Vertical", 26, 2, 47, 2))
sketch2.addConstraint(Sketcher.Constraint("Vertical", 35, 2, 49, 2))
sketch2.addConstraint(Sketcher.Constraint("Vertical", 36, 2, 51, 2))
sketch2.addConstraint(Sketcher.Constraint("Vertical", 30, 2, 53, 2))
sketch2.addConstraint(Sketcher.Constraint("Vertical", 29, 2, 55, 2))
sketch2.addConstraint(Sketcher.Constraint("Vertical", 20, 2, 57, 2))
sketch2.addConstraint(Sketcher.Constraint("Vertical", 19, 2, 59, 2))
sketch2.addConstraint(Sketcher.Constraint("Vertical", 11, 2, 61, 2))
sketch2.addConstraint(Sketcher.Constraint("Vertical", 10, 2, 63, 2))
sketch2.addConstraint(Sketcher.Constraint("Vertical", 42, 2, 65, 2))
sketch2.addConstraint(Sketcher.Constraint("Vertical", 44, 2, 67, 2))
sketch2.addConstraint(Sketcher.Constraint("Vertical", 46, 2, 69, 2))
sketch2.addConstraint(Sketcher.Constraint("Vertical", 48, 2, 71, 2))
sketch2.addConstraint(Sketcher.Constraint("Vertical", 50, 2, 73, 2))
sketch2.addConstraint(Sketcher.Constraint("Vertical", 52, 2, 75, 2))
sketch2.addConstraint(Sketcher.Constraint("Vertical", 54, 2, 77, 2))
sketch2.addConstraint(Sketcher.Constraint("Vertical", 56, 2, 79, 2))
sketch2.addConstraint(Sketcher.Constraint("Vertical", 58, 2, 81, 2))
sketch2.addConstraint(Sketcher.Constraint("Vertical", 60, 2, 83, 2))
sketch2.addConstraint(Sketcher.Constraint("Vertical", 62, 2, 85, 2))
sketch2.addConstraint(Sketcher.Constraint("Vertical", 64, 2, 87, 2))
sketch2.addConstraint(Sketcher.Constraint("Equal", 11, 14))
sketch2.addConstraint(Sketcher.Constraint("Equal", 16, 18))
sketch2.addConstraint(Sketcher.Constraint("Equal", 20, 24))
sketch2.addConstraint(Sketcher.Constraint("Equal", 26, 28))
sketch2.addConstraint(Sketcher.Constraint("Equal", 30, 34))
sketch2.addConstraint(Sketcher.Constraint("Equal", 3, 7))
sketch2.addConstraint(Sketcher.Constraint("Equal", 35, 42))
sketch2.addConstraint(Sketcher.Constraint("Equal", 64, 66))
sketch2.addConstraint(Sketcher.Constraint("Diameter", 12, 3.0))
sketch2.addConstraint(Sketcher.Constraint("DistanceY", 5, 1, 5, 2, 5.0))
sketch2.addConstraint(Sketcher.Constraint("DistanceX", 9, 1, 9, 2, 2.2))
sketch2.addConstraint(Sketcher.Constraint("DistanceY", 12, 3, -1, 1, 3.0))
sketch2.addConstraint(Sketcher.Constraint("DistanceX", 4, 1, 4, 2, 6.0))
sketch2.addConstraint(Sketcher.Constraint("DistanceX", 0, 2, 0, 1, 40.3))
sketch2.addConstraint(Sketcher.Constraint("DistanceY", 1, 2, 1, 1, 19.8))
sketch2.addConstraint(Sketcher.Constraint("DistanceY", 37, 3, -1, 1, 8.0))
sketch2.addConstraint(Sketcher.Constraint("DistanceY", -1, 1, 38, 3, 2.0))
sketch2.addConstraint(Sketcher.Constraint("DistanceX", -1, 1, 9, 2, 40.0))
sketch2.addConstraint(Sketcher.Constraint("DistanceX", -1, 1, 13, 2, 115.0))
sketch2.addConstraint(Sketcher.Constraint("DistanceX", -1, 1, 18, 2, 55.0))
sketch2.addConstraint(Sketcher.Constraint("DistanceX", -1, 1, 23, 2, 100.0))
sketch2.addConstraint(Sketcher.Constraint("DistanceX", -1, 1, 28, 2, 70.0))
sketch2.addConstraint(Sketcher.Constraint("DistanceX", -1, 1, 33, 2, 85.0))
sketch2.addConstraint(Sketcher.Constraint("DistanceX", -1, 1, 12, 3, 46.4))
sketch2.addConstraint(Sketcher.Constraint("DistanceX", -1, 1, 21, 3, 106.4))
sketch2.addConstraint(Sketcher.Constraint("DistanceX", -1, 1, 22, 3, 61.4))
sketch2.addConstraint(Sketcher.Constraint("DistanceX", -1, 1, 31, 3, 91.4))
sketch2.addConstraint(Sketcher.Constraint("DistanceX", -1, 1, 32, 3, 76.4))
sketch2.addConstraint(Sketcher.Constraint("DistanceX", 0, 2, -1, 1, 22.4))
sketch2.addConstraint(Sketcher.Constraint("DistanceY", -1, 1, 0, 2, 6.9))
sketch2.addConstraint(Sketcher.Constraint("DistanceY", 41, 2, -1, 1, 10.5))
sketch2.addConstraint(Sketcher.Constraint("DistanceY", -1, 1, 65, 2, 9.5))
sketch2.addConstraint(Sketcher.Constraint("DistanceX", -1, 1, 37, 3, 22.25))
sketch2.addConstraint(Sketcher.Constraint("DistanceX", 39, 3, -1, 1, 26.75))
pocket1 = body.newObject("PartDesign::Pocket", "Pocket")
pocket1.Profile = sketch2
pocket1.Length = 10

doc.recompute()
